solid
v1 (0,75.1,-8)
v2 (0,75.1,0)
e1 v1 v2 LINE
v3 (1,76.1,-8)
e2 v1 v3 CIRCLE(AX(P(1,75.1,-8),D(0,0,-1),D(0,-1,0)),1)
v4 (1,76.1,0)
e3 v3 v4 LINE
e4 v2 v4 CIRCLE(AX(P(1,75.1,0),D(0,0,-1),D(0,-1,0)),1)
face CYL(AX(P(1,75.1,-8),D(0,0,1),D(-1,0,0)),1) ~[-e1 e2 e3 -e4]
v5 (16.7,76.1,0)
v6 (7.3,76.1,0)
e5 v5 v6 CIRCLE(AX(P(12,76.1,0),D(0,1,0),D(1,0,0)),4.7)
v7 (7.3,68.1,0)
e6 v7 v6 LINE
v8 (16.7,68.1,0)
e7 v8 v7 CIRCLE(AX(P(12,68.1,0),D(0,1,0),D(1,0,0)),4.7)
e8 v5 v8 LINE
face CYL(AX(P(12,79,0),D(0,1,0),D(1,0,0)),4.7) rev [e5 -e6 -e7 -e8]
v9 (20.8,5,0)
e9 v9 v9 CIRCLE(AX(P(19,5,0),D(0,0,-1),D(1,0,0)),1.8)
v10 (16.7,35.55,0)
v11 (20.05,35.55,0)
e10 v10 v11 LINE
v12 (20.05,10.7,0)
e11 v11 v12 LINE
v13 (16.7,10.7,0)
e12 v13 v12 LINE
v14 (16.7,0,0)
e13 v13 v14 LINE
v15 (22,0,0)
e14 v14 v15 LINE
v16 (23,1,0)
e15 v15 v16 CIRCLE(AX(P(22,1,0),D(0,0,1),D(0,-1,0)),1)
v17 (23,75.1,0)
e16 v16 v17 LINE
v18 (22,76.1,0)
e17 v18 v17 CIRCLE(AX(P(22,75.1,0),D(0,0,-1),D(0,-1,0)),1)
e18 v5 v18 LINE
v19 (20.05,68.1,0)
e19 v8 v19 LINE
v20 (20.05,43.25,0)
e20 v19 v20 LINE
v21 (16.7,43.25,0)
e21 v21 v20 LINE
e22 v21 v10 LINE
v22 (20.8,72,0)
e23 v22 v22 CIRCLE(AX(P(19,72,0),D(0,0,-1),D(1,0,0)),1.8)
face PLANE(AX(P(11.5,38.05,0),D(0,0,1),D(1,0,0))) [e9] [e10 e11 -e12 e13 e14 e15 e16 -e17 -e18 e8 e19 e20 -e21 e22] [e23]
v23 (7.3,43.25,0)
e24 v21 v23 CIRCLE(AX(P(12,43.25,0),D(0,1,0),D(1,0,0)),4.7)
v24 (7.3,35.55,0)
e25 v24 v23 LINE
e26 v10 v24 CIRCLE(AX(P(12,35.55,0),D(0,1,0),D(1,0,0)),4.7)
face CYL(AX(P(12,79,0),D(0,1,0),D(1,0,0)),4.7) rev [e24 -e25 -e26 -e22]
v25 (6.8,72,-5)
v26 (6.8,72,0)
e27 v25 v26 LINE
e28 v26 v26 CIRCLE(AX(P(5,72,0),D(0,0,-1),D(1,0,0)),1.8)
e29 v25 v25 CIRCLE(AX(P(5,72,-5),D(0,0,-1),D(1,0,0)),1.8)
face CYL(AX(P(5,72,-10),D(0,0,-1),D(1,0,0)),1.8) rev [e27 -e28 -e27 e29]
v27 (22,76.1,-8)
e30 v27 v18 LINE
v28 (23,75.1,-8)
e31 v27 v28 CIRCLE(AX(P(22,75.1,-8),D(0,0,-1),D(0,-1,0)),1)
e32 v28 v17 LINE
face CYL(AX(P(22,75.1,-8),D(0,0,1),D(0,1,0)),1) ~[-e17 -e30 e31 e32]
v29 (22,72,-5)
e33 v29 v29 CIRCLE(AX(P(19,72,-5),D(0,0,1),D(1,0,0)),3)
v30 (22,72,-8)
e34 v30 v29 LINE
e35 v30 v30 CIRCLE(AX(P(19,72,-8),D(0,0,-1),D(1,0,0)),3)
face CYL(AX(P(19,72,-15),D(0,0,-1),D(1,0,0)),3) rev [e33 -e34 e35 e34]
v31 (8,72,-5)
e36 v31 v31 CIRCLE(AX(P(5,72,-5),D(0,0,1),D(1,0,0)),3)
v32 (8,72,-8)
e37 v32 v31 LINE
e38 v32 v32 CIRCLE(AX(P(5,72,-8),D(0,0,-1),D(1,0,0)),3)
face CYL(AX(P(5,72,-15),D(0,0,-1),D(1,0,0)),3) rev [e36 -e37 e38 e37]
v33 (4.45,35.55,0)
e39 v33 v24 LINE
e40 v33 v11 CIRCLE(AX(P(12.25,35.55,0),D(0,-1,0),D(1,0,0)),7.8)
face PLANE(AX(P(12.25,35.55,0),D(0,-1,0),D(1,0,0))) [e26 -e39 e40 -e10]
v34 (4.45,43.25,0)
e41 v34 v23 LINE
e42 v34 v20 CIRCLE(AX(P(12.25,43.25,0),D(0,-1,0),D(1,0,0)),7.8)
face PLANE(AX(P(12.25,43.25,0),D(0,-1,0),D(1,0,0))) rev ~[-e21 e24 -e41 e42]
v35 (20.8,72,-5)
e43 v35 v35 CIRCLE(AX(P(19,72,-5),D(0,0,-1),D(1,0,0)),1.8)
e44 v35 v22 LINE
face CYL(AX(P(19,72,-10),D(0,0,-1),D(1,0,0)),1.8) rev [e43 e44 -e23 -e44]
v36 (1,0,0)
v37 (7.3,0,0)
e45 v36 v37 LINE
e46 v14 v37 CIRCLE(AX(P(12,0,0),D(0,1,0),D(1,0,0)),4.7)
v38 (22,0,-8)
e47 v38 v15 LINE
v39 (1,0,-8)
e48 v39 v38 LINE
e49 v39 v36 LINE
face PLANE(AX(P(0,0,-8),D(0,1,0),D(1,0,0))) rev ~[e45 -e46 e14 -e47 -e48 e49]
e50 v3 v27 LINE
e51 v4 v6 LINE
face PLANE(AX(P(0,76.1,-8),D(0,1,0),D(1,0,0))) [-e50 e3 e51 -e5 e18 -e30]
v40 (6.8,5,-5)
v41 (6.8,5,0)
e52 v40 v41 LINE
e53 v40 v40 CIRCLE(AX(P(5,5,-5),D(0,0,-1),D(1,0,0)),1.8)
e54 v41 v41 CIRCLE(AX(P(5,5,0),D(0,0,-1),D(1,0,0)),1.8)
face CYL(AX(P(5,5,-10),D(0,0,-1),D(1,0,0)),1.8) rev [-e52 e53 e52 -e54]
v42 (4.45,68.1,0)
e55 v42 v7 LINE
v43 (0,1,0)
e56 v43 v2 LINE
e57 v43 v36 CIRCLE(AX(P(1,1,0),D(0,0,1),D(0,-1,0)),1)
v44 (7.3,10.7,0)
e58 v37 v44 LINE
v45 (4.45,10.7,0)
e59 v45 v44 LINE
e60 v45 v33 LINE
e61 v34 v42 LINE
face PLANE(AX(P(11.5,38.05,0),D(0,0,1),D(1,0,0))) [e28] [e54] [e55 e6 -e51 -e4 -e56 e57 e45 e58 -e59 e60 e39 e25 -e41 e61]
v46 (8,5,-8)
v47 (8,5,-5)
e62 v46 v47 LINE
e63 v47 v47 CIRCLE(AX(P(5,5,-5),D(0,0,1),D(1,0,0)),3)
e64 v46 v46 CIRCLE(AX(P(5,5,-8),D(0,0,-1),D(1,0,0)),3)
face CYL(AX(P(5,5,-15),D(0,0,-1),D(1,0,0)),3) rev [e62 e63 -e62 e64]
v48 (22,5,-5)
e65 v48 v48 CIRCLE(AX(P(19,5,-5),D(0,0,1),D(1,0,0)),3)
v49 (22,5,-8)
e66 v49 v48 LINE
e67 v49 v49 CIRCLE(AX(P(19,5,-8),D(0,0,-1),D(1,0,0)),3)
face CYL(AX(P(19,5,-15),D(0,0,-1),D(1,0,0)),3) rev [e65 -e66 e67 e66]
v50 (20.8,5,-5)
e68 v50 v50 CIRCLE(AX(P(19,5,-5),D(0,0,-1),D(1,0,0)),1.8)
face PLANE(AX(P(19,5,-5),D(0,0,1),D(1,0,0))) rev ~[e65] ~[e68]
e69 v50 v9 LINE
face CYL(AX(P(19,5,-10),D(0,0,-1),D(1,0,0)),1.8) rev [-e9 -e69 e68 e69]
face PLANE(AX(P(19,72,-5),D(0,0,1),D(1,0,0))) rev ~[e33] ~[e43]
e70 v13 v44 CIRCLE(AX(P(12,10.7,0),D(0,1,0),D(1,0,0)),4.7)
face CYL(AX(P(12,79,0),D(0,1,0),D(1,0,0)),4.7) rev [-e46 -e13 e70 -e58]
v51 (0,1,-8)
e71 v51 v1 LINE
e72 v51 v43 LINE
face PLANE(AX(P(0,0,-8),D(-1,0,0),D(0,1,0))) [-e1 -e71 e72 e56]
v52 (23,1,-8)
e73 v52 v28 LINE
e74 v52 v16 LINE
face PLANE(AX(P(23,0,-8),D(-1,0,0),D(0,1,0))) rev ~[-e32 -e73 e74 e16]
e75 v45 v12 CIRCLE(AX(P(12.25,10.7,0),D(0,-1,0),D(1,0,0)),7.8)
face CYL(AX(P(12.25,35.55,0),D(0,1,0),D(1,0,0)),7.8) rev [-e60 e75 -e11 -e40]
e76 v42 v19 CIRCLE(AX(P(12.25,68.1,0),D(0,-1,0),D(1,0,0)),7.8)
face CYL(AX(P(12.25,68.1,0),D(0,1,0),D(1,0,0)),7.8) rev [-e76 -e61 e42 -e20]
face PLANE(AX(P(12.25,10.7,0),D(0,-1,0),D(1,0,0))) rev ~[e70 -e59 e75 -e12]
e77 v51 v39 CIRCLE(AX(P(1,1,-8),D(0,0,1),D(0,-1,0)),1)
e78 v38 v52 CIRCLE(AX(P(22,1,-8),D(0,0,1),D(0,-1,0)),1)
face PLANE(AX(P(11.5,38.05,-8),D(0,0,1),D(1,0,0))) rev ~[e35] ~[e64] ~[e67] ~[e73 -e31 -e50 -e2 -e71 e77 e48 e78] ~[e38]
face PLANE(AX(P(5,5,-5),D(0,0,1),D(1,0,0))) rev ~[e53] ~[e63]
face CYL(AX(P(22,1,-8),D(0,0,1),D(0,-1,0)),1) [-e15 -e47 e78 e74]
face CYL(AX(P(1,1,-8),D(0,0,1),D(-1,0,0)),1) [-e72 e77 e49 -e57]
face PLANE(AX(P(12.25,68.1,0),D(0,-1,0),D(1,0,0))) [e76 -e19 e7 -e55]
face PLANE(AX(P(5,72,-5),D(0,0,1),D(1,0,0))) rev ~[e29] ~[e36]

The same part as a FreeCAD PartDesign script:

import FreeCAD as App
import Part
import Sketcher
Q = App.Units.Quantity


def edges_at(feature, points):
    """Names of the edges that pass closest to the given points."""
    edges = feature.Shape.Edges
    near = lambda p: min(range(len(edges)), key=lambda i: edges[i].distToShape(Part.Vertex(*p))[0])
    return sorted({f"Edge{near(p) + 1}" for p in points})


def add_polygon(sketch, points):
    """Adds a closed chain of lines whose ends are joined by coincident constraints."""
    first, n = sketch.GeometryCount, len(points)
    for a, b in zip(points, points[1:] + points[:1]):
        sketch.addGeometry(Part.LineSegment(App.Vector(*a, 0), App.Vector(*b, 0)), False)
    for i in range(n):
        sketch.addConstraint(Sketcher.Constraint("Coincident", first + i, 2, first + (i + 1) % n, 1))

doc = App.newDocument("Part")
body = doc.addObject("PartDesign::Body", "Body")

# Sketch on XY plane
sketch1 = doc.addObject("Sketcher::SketchObject", "Sketch")
body.addObject(sketch1)
sketch1.AttachmentSupport = (doc.XY_Plane, [""])
sketch1.MapMode = "FlatFace"
sketch1.addGeometry(Part.Circle(App.Vector(0, 0, 0), App.Vector(0, 0, 1), 4.7), False)
sketch1.addConstraint(Sketcher.Constraint("Coincident", 0, 3, -1, 1))
sketch1.addConstraint(Sketcher.Constraint("Diameter", 0, Q("9.4 mm")))
pad1 = doc.addObject("PartDesign::Pad", "Pad")
body.addObject(pad1)
pad1.Profile = sketch1
pad1.Length = 100
body2 = doc.addObject("PartDesign::Body", "Body001")
doc.recompute()

body.Placement = App.Placement(App.Vector(0, 0, 0), App.Rotation(App.Vector(1, 0, 0), 90))
boolean = doc.addObject("PartDesign::Boolean", "Boolean")
body2.addObject(boolean)
boolean.Type = "Fuse"
boolean.addObjects([body])
body3 = doc.addObject("PartDesign::Body", "Body002")
doc.recompute()

body2.Placement = App.Placement(App.Vector(12, 79, 0), App.Rotation(App.Vector(0, 0, 1), 0))
boolean2 = doc.addObject("PartDesign::Boolean", "Boolean001")
body3.addObject(boolean2)
boolean2.Type = "Fuse"
boolean2.addObjects([body2])
body4 = doc.addObject("PartDesign::Body", "Body003")

# Sketch on XY plane
sketch2 = doc.addObject("Sketcher::SketchObject", "Sketch001")
body4.addObject(sketch2)
sketch2.AttachmentSupport = (doc.getObject("XY_Plane003"), [""])
sketch2.MapMode = "FlatFace"
sketch2.AttachmentOffset = App.Placement(App.Vector(0, 0, -10), App.Rotation())
sketch2.addGeometry(Part.Circle(App.Vector(19, 5, 0), App.Vector(0, 0, 1), 1.8), False)
sketch2.addConstraint(Sketcher.Constraint("Diameter", 0, Q("3.6 mm")))
sketch2.addConstraint(Sketcher.Constraint("DistanceX", -1, 1, 0, 3, Q("19 mm")))
sketch2.addConstraint(Sketcher.Constraint("DistanceY", -1, 1, 0, 3, Q("5 mm")))
pad2 = doc.addObject("PartDesign::Pad", "Pad001")
body4.addObject(pad2)
pad2.Profile = sketch2
pad2.Length = 20
body5 = doc.addObject("PartDesign::Body", "Body004")

# Sketch on XY plane
sketch3 = doc.addObject("Sketcher::SketchObject", "Sketch002")
body5.addObject(sketch3)
sketch3.AttachmentSupport = (doc.getObject("XY_Plane004"), [""])
sketch3.MapMode = "FlatFace"
sketch3.AttachmentOffset = App.Placement(App.Vector(0, 0, -15), App.Rotation())
sketch3.addGeometry(Part.Circle(App.Vector(19, 5, 0), App.Vector(0, 0, 1), 3), False)
sketch3.addConstraint(Sketcher.Constraint("Diameter", 0, Q("6 mm")))
sketch3.addConstraint(Sketcher.Constraint("DistanceX", -1, 1, 0, 3, Q("19 mm")))
sketch3.addConstraint(Sketcher.Constraint("DistanceY", -1, 1, 0, 3, Q("5 mm")))
pad3 = doc.addObject("PartDesign::Pad", "Pad002")
body5.addObject(pad3)
pad3.Profile = sketch3
pad3.Length = 10
body6 = doc.addObject("PartDesign::Body", "Body005")

# Sketch on XY plane
sketch4 = doc.addObject("Sketcher::SketchObject", "Sketch003")
body6.addObject(sketch4)
sketch4.AttachmentSupport = (doc.getObject("XY_Plane005"), [""])
sketch4.MapMode = "FlatFace"
sketch4.AttachmentOffset = App.Placement(App.Vector(0, 0, -10), App.Rotation())
sketch4.addGeometry(Part.Circle(App.Vector(19, 72, 0), App.Vector(0, 0, 1), 1.8), False)
sketch4.addConstraint(Sketcher.Constraint("Diameter", 0, Q("3.6 mm")))
sketch4.addConstraint(Sketcher.Constraint("DistanceX", -1, 1, 0, 3, Q("19 mm")))
sketch4.addConstraint(Sketcher.Constraint("DistanceY", -1, 1, 0, 3, Q("72 mm")))
pad4 = doc.addObject("PartDesign::Pad", "Pad003")
body6.addObject(pad4)
pad4.Profile = sketch4
pad4.Length = 20
body7 = doc.addObject("PartDesign::Body", "Body006")

# Sketch on XY plane
sketch5 = doc.addObject("Sketcher::SketchObject", "Sketch004")
body7.addObject(sketch5)
sketch5.AttachmentSupport = (doc.getObject("XY_Plane006"), [""])
sketch5.MapMode = "FlatFace"
sketch5.AttachmentOffset = App.Placement(App.Vector(0, 0, -15), App.Rotation())
sketch5.addGeometry(Part.Circle(App.Vector(19, 72, 0), App.Vector(0, 0, 1), 3), False)
sketch5.addConstraint(Sketcher.Constraint("Diameter", 0, Q("6 mm")))
sketch5.addConstraint(Sketcher.Constraint("DistanceX", -1, 1, 0, 3, Q("19 mm")))
sketch5.addConstraint(Sketcher.Constraint("DistanceY", -1, 1, 0, 3, Q("72 mm")))
pad5 = doc.addObject("PartDesign::Pad", "Pad004")
body7.addObject(pad5)
pad5.Profile = sketch5
pad5.Length = 10
body8 = doc.addObject("PartDesign::Body", "Body007")

# Sketch on XY plane
sketch6 = doc.addObject("Sketcher::SketchObject", "Sketch005")
body8.addObject(sketch6)
sketch6.AttachmentSupport = (doc.getObject("XY_Plane007"), [""])
sketch6.MapMode = "FlatFace"
sketch6.AttachmentOffset = App.Placement(App.Vector(0, 0, -15), App.Rotation())
sketch6.addGeometry(Part.Circle(App.Vector(5, 72, 0), App.Vector(0, 0, 1), 3), False)
sketch6.addConstraint(Sketcher.Constraint("Diameter", 0, Q("6 mm")))
sketch6.addConstraint(Sketcher.Constraint("DistanceX", -1, 1, 0, 3, Q("5 mm")))
sketch6.addConstraint(Sketcher.Constraint("DistanceY", -1, 1, 0, 3, Q("72 mm")))
pad6 = doc.addObject("PartDesign::Pad", "Pad005")
body8.addObject(pad6)
pad6.Profile = sketch6
pad6.Length = 10
body9 = doc.addObject("PartDesign::Body", "Body008")

# Sketch on XY plane
sketch7 = doc.addObject("Sketcher::SketchObject", "Sketch006")
body9.addObject(sketch7)
sketch7.AttachmentSupport = (doc.getObject("XY_Plane008"), [""])
sketch7.MapMode = "FlatFace"
sketch7.AttachmentOffset = App.Placement(App.Vector(0, 0, -15), App.Rotation())
sketch7.addGeometry(Part.Circle(App.Vector(5, 5, 0), App.Vector(0, 0, 1), 3), False)
sketch7.addConstraint(Sketcher.Constraint("Diameter", 0, Q("6 mm")))
sketch7.addConstraint(Sketcher.Constraint("DistanceX", -1, 1, 0, 3, Q("5 mm")))
sketch7.addConstraint(Sketcher.Constraint("DistanceY", -1, 1, 0, 3, Q("5 mm")))
pad7 = doc.addObject("PartDesign::Pad", "Pad006")
body9.addObject(pad7)
pad7.Profile = sketch7
pad7.Length = 10
body10 = doc.addObject("PartDesign::Body", "Body009")

# Sketch on XY plane
sketch8 = doc.addObject("Sketcher::SketchObject", "Sketch007")
body10.addObject(sketch8)
sketch8.AttachmentSupport = (doc.getObject("XY_Plane009"), [""])
sketch8.MapMode = "FlatFace"
sketch8.AttachmentOffset = App.Placement(App.Vector(0, 0, -10), App.Rotation())
sketch8.addGeometry(Part.Circle(App.Vector(5, 5, 0), App.Vector(0, 0, 1), 1.8), False)
sketch8.addConstraint(Sketcher.Constraint("Diameter", 0, Q("3.6 mm")))
sketch8.addConstraint(Sketcher.Constraint("DistanceX", -1, 1, 0, 3, Q("5 mm")))
sketch8.addConstraint(Sketcher.Constraint("DistanceY", -1, 1, 0, 3, Q("5 mm")))
pad8 = doc.addObject("PartDesign::Pad", "Pad007")
body10.addObject(pad8)
pad8.Profile = sketch8
pad8.Length = 20
body11 = doc.addObject("PartDesign::Body", "Body010")

# Sketch on XY plane
sketch9 = doc.addObject("Sketcher::SketchObject", "Sketch008")
body11.addObject(sketch9)
sketch9.AttachmentSupport = (doc.getObject("XY_Plane010"), [""])
sketch9.MapMode = "FlatFace"
sketch9.AttachmentOffset = App.Placement(App.Vector(0, 0, -10), App.Rotation())
sketch9.addGeometry(Part.Circle(App.Vector(5, 72, 0), App.Vector(0, 0, 1), 1.8), False)
sketch9.addConstraint(Sketcher.Constraint("Diameter", 0, Q("3.6 mm")))
sketch9.addConstraint(Sketcher.Constraint("DistanceX", -1, 1, 0, 3, Q("5 mm")))
sketch9.addConstraint(Sketcher.Constraint("DistanceY", -1, 1, 0, 3, Q("72 mm")))
pad9 = doc.addObject("PartDesign::Pad", "Pad008")
body11.addObject(pad9)
pad9.Profile = sketch9
pad9.Length = 20
body12 = doc.addObject("PartDesign::Body", "Body011")

# Sketch on XY plane
sketch10 = doc.addObject("Sketcher::SketchObject", "Sketch009")
body12.addObject(sketch10)
sketch10.AttachmentSupport = (doc.getObject("XY_Plane011"), [""])
sketch10.MapMode = "FlatFace"
sketch10.addGeometry(Part.Circle(App.Vector(0, 0, 0), App.Vector(0, 0, 1), 8), False)
sketch10.addConstraint(Sketcher.Constraint("Coincident", 0, 3, -1, 1))
sketch10.addConstraint(Sketcher.Constraint("Diameter", 0, Q("15.6 mm")))
pad10 = doc.addObject("PartDesign::Pad", "Pad009")
body12.addObject(pad10)
pad10.Profile = sketch10
pad10.Length = 24.85
body13 = doc.addObject("PartDesign::Body", "Body012")
doc.recompute()

body12.Placement = App.Placement(App.Vector(0, 0, 0), App.Rotation(App.Vector(1, 0, 0), 90))
boolean3 = doc.addObject("PartDesign::Boolean", "Boolean002")
body13.addObject(boolean3)
boolean3.Type = "Fuse"
boolean3.addObjects([body12])
body14 = doc.addObject("PartDesign::Body", "Body013")
doc.recompute()

body13.Placement = App.Placement(App.Vector(12.25, 68.1, 0), App.Rotation(App.Vector(0, 0, 1), 0))
boolean4 = doc.addObject("PartDesign::Boolean", "Boolean003")
body14.addObject(boolean4)
boolean4.Type = "Fuse"
boolean4.addObjects([body13])
body15 = doc.addObject("PartDesign::Body", "Body014")

# Sketch on XY plane
sketch11 = doc.addObject("Sketcher::SketchObject", "Sketch010")
body15.addObject(sketch11)
sketch11.AttachmentSupport = (doc.getObject("XY_Plane014"), [""])
sketch11.MapMode = "FlatFace"
sketch11.addGeometry(Part.Circle(App.Vector(0, 0, 0), App.Vector(0, 0, 1), 4.4), False)
sketch11.addConstraint(Sketcher.Constraint("Coincident", 0, 3, -1, 1))
sketch11.addConstraint(Sketcher.Constraint("Diameter", 0, Q("8.8 mm")))
pad11 = doc.addObject("PartDesign::Pad", "Pad010")
body15.addObject(pad11)
pad11.Profile = sketch11
pad11.Length = 76.1
body16 = doc.addObject("PartDesign::Body", "Body015")
doc.recompute()

body15.Placement = App.Placement(App.Vector(0, 0, 0), App.Rotation(App.Vector(1, 0, 0), 90))
boolean5 = doc.addObject("PartDesign::Boolean", "Boolean004")
body16.addObject(boolean5)
boolean5.Type = "Fuse"
boolean5.addObjects([body15])
body17 = doc.addObject("PartDesign::Body", "Body016")
doc.recompute()

body16.Placement = App.Placement(App.Vector(12.25, 76.1, 0), App.Rotation(App.Vector(0, 0, 1), 0))
boolean6 = doc.addObject("PartDesign::Boolean", "Boolean005")
body17.addObject(boolean6)
boolean6.Type = "Fuse"
boolean6.addObjects([body16])
body18 = doc.addObject("PartDesign::Body", "Body017")

# Sketch on XY plane
sketch12 = doc.addObject("Sketcher::SketchObject", "Sketch011")
body18.addObject(sketch12)
sketch12.AttachmentSupport = (doc.getObject("XY_Plane017"), [""])
sketch12.MapMode = "FlatFace"
sketch12.addGeometry(Part.Circle(App.Vector(0, 0, 0), App.Vector(0, 0, 1), 8), False)
sketch12.addConstraint(Sketcher.Constraint("Coincident", 0, 3, -1, 1))
sketch12.addConstraint(Sketcher.Constraint("Diameter", 0, Q("15.6 mm")))
pad12 = doc.addObject("PartDesign::Pad", "Pad011")
body18.addObject(pad12)
pad12.Profile = sketch12
pad12.Length = 24.85
body19 = doc.addObject("PartDesign::Body", "Body018")
doc.recompute()

body18.Placement = App.Placement(App.Vector(0, 0, 0), App.Rotation(App.Vector(1, 0, 0), 90))
boolean7 = doc.addObject("PartDesign::Boolean", "Boolean006")
body19.addObject(boolean7)
boolean7.Type = "Fuse"
boolean7.addObjects([body18])
body20 = doc.addObject("PartDesign::Body", "Body019")
doc.recompute()

body19.Placement = App.Placement(App.Vector(12.25, 35.55, 0), App.Rotation(App.Vector(0, 0, 1), 0))
boolean8 = doc.addObject("PartDesign::Boolean", "Boolean007")
body20.addObject(boolean8)
boolean8.Type = "Fuse"
boolean8.addObjects([body19])
body21 = doc.addObject("PartDesign::Body", "Body020")

# Sketch on XY plane
sketch13 = doc.addObject("Sketcher::SketchObject", "Sketch012")
body21.addObject(sketch13)
sketch13.AttachmentSupport = (doc.getObject("XY_Plane020"), [""])
sketch13.MapMode = "FlatFace"
sketch13.AttachmentOffset = App.Placement(App.Vector(0, 0, -8), App.Rotation())
add_polygon(sketch13, [(0, 76), (0, 0), (23, 0), (23, 76)])  # lines 0-3
sketch13.addConstraint(Sketcher.Constraint("Vertical", 0))
sketch13.addConstraint(Sketcher.Constraint("Horizontal", 1))
sketch13.addConstraint(Sketcher.Constraint("Vertical", 2))
sketch13.addConstraint(Sketcher.Constraint("Horizontal", 3))
sketch13.addConstraint(Sketcher.Constraint("Coincident", 0, 2, -1, 1))
sketch13.addConstraint(Sketcher.Constraint("DistanceX", 1, 1, 1, 2, Q("23 mm")))
sketch13.addConstraint(Sketcher.Constraint("DistanceY", 0, 2, 0, 1, Q("76.1 mm")))
pad13 = doc.addObject("PartDesign::Pad", "Pad012")
body21.addObject(pad13)
pad13.Profile = sketch13
pad13.Length = 8
doc.recompute()

boolean9 = doc.addObject("PartDesign::Boolean", "Boolean008")
body21.addObject(boolean9)
boolean9.Type = "Cut"
boolean9.addObjects([body20])
doc.recompute()

boolean10 = doc.addObject("PartDesign::Boolean", "Boolean009")
body21.addObject(boolean10)
boolean10.Type = "Cut"
boolean10.addObjects([body17])
doc.recompute()

boolean11 = doc.addObject("PartDesign::Boolean", "Boolean010")
body21.addObject(boolean11)
boolean11.Type = "Cut"
boolean11.addObjects([body14])
doc.recompute()

boolean12 = doc.addObject("PartDesign::Boolean", "Boolean011")
body21.addObject(boolean12)
boolean12.Type = "Cut"
boolean12.addObjects([body11])
doc.recompute()

boolean13 = doc.addObject("PartDesign::Boolean", "Boolean012")
body21.addObject(boolean13)
boolean13.Type = "Cut"
boolean13.addObjects([body10])
doc.recompute()

fillet = doc.addObject("PartDesign::Fillet", "Fillet")
body21.addObject(fillet)
fillet.Base = (boolean13, edges_at(boolean13, [
    (0, 0, -4),
    (0, 76.1, -4),
    (23, 0, -4),
    (23, 76.1, -4),
]))
fillet.Radius = 1
doc.recompute()

boolean14 = doc.addObject("PartDesign::Boolean", "Boolean013")
body21.addObject(boolean14)
boolean14.Type = "Cut"
boolean14.addObjects([body9])
doc.recompute()

boolean15 = doc.addObject("PartDesign::Boolean", "Boolean014")
body21.addObject(boolean15)
boolean15.Type = "Cut"
boolean15.addObjects([body8])
doc.recompute()

boolean16 = doc.addObject("PartDesign::Boolean", "Boolean015")
body21.addObject(boolean16)
boolean16.Type = "Cut"
boolean16.addObjects([body7])
doc.recompute()

boolean17 = doc.addObject("PartDesign::Boolean", "Boolean016")
body21.addObject(boolean17)
boolean17.Type = "Cut"
boolean17.addObjects([body6])
doc.recompute()

boolean18 = doc.addObject("PartDesign::Boolean", "Boolean017")
body21.addObject(boolean18)
boolean18.Type = "Cut"
boolean18.addObjects([body5])
doc.recompute()

boolean19 = doc.addObject("PartDesign::Boolean", "Boolean018")
body21.addObject(boolean19)
boolean19.Type = "Cut"
boolean19.addObjects([body4])
doc.recompute()

boolean20 = doc.addObject("PartDesign::Boolean", "Boolean019")
body21.addObject(boolean20)
boolean20.Type = "Cut"
boolean20.addObjects([body3])

doc.recompute()
